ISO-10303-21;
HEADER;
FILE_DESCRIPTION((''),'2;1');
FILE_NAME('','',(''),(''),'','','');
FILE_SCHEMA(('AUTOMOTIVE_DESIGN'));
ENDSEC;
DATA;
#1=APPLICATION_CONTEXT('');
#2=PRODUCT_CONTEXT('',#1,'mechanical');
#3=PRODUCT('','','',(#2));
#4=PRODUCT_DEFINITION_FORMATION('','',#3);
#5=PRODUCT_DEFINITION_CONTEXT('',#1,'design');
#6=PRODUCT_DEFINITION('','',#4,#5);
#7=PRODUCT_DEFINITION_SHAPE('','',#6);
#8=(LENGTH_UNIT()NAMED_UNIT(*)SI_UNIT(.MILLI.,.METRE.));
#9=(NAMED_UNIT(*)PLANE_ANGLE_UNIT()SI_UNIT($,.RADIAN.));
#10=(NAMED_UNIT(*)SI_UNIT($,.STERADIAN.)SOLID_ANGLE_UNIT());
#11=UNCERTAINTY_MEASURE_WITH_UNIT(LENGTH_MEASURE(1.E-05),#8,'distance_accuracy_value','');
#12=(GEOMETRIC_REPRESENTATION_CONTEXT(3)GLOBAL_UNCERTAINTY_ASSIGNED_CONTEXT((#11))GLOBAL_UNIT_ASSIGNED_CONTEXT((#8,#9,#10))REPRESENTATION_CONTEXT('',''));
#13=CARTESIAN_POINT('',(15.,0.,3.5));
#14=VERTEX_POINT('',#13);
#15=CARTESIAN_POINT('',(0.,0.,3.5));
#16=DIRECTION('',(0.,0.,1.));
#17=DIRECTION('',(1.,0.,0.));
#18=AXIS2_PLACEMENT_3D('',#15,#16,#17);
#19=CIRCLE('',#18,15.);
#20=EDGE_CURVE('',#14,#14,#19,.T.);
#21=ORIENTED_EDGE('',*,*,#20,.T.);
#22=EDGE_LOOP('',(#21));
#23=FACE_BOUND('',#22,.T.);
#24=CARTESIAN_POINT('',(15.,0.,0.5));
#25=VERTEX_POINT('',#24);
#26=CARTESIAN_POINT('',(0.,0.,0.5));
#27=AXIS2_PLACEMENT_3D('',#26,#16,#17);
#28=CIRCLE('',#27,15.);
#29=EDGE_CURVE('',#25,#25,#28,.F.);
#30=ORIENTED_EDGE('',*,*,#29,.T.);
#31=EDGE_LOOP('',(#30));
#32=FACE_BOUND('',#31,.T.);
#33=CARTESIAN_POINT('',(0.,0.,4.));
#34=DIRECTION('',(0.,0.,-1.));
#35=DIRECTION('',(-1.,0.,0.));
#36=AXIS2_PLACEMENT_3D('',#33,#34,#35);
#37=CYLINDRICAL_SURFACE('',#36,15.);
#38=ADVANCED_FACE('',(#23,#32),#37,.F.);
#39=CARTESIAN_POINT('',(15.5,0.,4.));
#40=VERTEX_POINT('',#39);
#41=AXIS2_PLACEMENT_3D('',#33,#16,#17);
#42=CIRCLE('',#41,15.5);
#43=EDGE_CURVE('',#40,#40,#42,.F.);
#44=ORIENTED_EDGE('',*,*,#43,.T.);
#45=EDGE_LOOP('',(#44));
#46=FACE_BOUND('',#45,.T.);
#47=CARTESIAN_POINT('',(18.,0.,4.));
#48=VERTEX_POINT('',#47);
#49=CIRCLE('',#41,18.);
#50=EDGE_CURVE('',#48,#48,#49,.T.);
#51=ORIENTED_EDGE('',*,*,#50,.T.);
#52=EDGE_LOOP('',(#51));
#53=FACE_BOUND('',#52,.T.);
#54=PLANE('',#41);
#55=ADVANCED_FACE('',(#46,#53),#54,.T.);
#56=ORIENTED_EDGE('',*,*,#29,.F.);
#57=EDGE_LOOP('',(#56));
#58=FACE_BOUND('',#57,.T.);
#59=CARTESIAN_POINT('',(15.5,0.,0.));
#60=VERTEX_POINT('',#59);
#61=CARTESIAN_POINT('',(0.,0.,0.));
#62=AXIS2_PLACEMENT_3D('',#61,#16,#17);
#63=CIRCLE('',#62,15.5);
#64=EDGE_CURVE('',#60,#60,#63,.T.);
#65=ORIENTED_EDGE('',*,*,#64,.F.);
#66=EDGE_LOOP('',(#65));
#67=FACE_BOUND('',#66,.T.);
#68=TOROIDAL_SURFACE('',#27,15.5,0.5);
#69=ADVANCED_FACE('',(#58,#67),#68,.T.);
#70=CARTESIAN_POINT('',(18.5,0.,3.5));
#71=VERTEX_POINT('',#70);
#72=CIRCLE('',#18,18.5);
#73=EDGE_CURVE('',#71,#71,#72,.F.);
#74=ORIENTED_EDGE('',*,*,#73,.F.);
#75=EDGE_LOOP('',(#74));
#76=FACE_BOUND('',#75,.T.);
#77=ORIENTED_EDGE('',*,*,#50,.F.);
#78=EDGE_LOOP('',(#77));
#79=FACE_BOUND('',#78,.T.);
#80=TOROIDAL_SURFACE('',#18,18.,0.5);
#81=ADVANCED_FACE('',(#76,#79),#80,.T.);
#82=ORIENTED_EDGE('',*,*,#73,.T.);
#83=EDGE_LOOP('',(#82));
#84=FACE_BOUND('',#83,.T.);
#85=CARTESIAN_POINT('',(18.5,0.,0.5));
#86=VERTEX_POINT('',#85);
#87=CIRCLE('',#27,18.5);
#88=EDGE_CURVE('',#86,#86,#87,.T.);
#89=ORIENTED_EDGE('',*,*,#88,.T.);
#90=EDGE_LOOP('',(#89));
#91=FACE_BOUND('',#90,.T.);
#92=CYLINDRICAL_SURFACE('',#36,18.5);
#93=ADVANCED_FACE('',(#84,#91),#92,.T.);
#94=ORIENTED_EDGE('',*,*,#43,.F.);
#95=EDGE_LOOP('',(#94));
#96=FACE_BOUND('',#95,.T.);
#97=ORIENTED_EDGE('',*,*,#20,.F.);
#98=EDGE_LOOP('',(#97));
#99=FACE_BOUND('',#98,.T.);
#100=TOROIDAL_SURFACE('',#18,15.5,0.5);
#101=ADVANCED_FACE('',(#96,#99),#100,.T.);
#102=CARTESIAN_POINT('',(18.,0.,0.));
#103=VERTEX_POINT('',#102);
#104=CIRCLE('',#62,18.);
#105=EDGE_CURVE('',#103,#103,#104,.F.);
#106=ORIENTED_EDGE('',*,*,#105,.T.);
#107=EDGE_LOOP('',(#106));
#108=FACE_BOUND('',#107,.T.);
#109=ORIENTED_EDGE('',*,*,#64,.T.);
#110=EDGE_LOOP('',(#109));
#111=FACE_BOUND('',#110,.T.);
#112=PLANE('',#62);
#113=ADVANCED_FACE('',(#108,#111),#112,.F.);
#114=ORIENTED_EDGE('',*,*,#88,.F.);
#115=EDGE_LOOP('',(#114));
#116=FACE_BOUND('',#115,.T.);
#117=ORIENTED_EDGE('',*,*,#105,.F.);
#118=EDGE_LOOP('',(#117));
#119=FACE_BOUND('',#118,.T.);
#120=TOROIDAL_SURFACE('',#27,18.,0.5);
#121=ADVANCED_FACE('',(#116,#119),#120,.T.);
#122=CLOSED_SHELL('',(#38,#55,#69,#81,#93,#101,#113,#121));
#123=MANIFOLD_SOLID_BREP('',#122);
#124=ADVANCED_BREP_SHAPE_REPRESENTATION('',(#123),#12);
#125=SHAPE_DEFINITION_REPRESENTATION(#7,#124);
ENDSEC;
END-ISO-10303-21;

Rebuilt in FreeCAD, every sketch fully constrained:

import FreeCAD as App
import Part
import Sketcher

V = App.Vector
Q = App.Units.Quantity


def edges_at(feature, points):
    """Names of the edges that pass closest to the given points."""
    edges = feature.Shape.Edges
    near = lambda p: min(range(len(edges)), key=lambda i: edges[i].distToShape(Part.Vertex(*p))[0])
    return sorted({f"Edge{near(p) + 1}" for p in points})

doc = App.newDocument("Part")
params = doc.addObject("Spreadsheet::Sheet", "Params")
for row, (alias, value) in enumerate([
    ("sketch1_diameter", "37 mm"),
    ("sketch1_diameter2", "30 mm"),
    ("pad1_length", "4 mm"),
    ("fillet_radius", "0.5 mm"),
], start=1):
    params.set(f"A{row}", alias)
    params.set(f"B{row}", "=" + value)
    params.setAlias(f"B{row}", alias)

body = doc.addObject("PartDesign::Body", "Body")

# Sketch on XY plane
sketch1 = body.newObject("Sketcher::SketchObject", "Sketch")
sketch1.AttachmentSupport = (doc.getObject("XY_Plane"), [""])
sketch1.MapMode = "FlatFace"
sketch1.addGeometry([
    Part.Circle(V(0, 0, 0), V(0, 0, 1), 18),
    Part.Circle(V(0, 0, 0), V(0, 0, 1), 15),
], False)
sketch1.addConstraint([
    Sketcher.Constraint("Coincident", 0, 3, -1, 1),
    Sketcher.Constraint("Coincident", 1, 3, -1, 1),
    Sketcher.Constraint("Diameter", 0, Q("37 mm")),
    Sketcher.Constraint("Diameter", 1, Q("30 mm")),
])
sketch1.setExpression("Constraints[2]", "Params.sketch1_diameter")
sketch1.setExpression("Constraints[3]", "Params.sketch1_diameter2")
pad1 = body.newObject("PartDesign::Pad", "Pad")
pad1.Profile = sketch1
pad1.setExpression("Length", "Params.pad1_length")
doc.recompute()

fillet = body.newObject("PartDesign::Fillet", "Fillet")
fillet.Base = (pad1, edges_at(pad1, [
    (-18.5, 0, 0),
    (-18.5, 0, 4),
    (-15, 0, 0),
    (-15, 0, 4),
]))
fillet.setExpression("Radius", "Params.fillet_radius")

doc.recompute()
